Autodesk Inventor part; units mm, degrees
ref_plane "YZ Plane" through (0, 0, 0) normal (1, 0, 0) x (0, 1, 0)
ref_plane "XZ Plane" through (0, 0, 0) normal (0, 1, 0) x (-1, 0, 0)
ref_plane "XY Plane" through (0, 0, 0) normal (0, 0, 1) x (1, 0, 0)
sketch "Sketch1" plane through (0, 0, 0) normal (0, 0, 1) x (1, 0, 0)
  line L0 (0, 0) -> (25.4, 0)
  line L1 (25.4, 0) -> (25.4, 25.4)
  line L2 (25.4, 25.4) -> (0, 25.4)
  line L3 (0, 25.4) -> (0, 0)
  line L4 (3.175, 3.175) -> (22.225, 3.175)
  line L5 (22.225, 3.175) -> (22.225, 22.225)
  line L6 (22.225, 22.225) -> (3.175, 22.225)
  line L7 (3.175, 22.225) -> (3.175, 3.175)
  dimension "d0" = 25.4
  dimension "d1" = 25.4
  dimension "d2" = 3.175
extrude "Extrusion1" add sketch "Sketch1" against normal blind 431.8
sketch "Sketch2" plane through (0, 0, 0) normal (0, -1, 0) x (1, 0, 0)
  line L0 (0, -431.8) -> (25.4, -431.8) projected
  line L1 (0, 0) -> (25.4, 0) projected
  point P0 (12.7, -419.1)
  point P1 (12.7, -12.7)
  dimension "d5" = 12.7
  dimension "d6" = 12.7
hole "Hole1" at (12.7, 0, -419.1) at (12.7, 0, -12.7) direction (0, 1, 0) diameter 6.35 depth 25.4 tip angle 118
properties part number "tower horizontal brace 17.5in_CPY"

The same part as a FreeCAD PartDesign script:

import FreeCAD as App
import Part
import Sketcher
from FreeCAD import Vector
Q = App.Units.Quantity


def add_polygon(sketch, points):
    """Adds a closed chain of lines whose ends are joined by coincident constraints."""
    first, n = sketch.GeometryCount, len(points)
    for a, b in zip(points, points[1:] + points[:1]):
        sketch.addGeometry(Part.LineSegment(App.Vector(*a, 0), App.Vector(*b, 0)), False)
    for i in range(n):
        sketch.addConstraint(Sketcher.Constraint("Coincident", first + i, 2, first + (i + 1) % n, 1))

doc = App.newDocument("Part")
body = doc.addObject("PartDesign::Body", "Body")

# Sketch on XY plane
sketch1 = doc.addObject("Sketcher::SketchObject", "Sketch")
body.addObject(sketch1)
sketch1.AttachmentSupport = (doc.XY_Plane, [""])
sketch1.MapMode = "FlatFace"
add_polygon(sketch1, [(0, 25.4), (0, 0), (25.4, 0), (25.4, 25.4)])  # lines 0-3
add_polygon(sketch1, [(22.225, 3.175), (3.175, 3.175), (3.175, 22.225), (22.225, 22.225)])  # lines 4-7
sketch1.addConstraint(Sketcher.Constraint("Vertical", 0))
sketch1.addConstraint(Sketcher.Constraint("Horizontal", 1))
sketch1.addConstraint(Sketcher.Constraint("Vertical", 2))
sketch1.addConstraint(Sketcher.Constraint("Horizontal", 3))
sketch1.addConstraint(Sketcher.Constraint("Horizontal", 4))
sketch1.addConstraint(Sketcher.Constraint("Vertical", 5))
sketch1.addConstraint(Sketcher.Constraint("Horizontal", 6))
sketch1.addConstraint(Sketcher.Constraint("Vertical", 7))
sketch1.addConstraint(Sketcher.Constraint("Coincident", 0, 2, -1, 1))
sketch1.addConstraint(Sketcher.Constraint("Equal", 3, 0))
sketch1.addConstraint(Sketcher.Constraint("Equal", 6, 5))
sketch1.addConstraint(Sketcher.Constraint("DistanceX", 1, 1, 1, 2, Q("1 in")))
sketch1.addConstraint(Sketcher.Constraint("DistanceX", -1, 1, 4, 2, Q("0.125 in")))
sketch1.addConstraint(Sketcher.Constraint("DistanceY", -1, 1, 4, 2, Q("0.125 in")))
sketch1.addConstraint(Sketcher.Constraint("DistanceY", 5, 2, 3, 2, Q("0.125 in")))
pad1 = doc.addObject("PartDesign::Pad", "Pad")
body.addObject(pad1)
pad1.Profile = sketch1
pad1.Length = Q("17 in")
pad1.Reversed = True

# Sketch on XZ plane
sketch2 = doc.addObject("Sketcher::SketchObject", "Sketch001")
body.addObject(sketch2)
sketch2.AttachmentSupport = (doc.XZ_Plane, [""])
sketch2.MapMode = "FlatFace"
sketch2.addGeometry(Part.Circle(Vector(12.7, -419.1, 0), Vector(0, 0, 1), 3.175), False)
sketch2.addGeometry(Part.Circle(Vector(12.7, -12.7, 0), Vector(0, 0, 1), 3.175), False)
sketch2.addConstraint(Sketcher.Constraint("Equal", 0, 1))
sketch2.addConstraint(Sketcher.Constraint("Vertical", 0, 3, 1, 3))
sketch2.addConstraint(Sketcher.Constraint("Diameter", 0, Q("0.25 in")))
sketch2.addConstraint(Sketcher.Constraint("DistanceY", 0, 3, 1, 3, Q("16 in")))
sketch2.addConstraint(Sketcher.Constraint("DistanceX", -1, 1, 0, 3, Q("0.5 in")))
sketch2.addConstraint(Sketcher.Constraint("DistanceY", 0, 3, -1, 1, Q("16.5 in")))
doc.recompute()
hole = doc.addObject("PartDesign::Hole", "Hole")
body.addObject(hole)
hole.Profile = sketch2
hole.ThreadType = "None"
hole.Diameter = Q("0.25 in")
hole.DepthType = "Dimension"
hole.Depth = Q("1 in")
hole.DrillPoint = "Angled"
hole.DrillPointAngle = 118

doc.recompute()
